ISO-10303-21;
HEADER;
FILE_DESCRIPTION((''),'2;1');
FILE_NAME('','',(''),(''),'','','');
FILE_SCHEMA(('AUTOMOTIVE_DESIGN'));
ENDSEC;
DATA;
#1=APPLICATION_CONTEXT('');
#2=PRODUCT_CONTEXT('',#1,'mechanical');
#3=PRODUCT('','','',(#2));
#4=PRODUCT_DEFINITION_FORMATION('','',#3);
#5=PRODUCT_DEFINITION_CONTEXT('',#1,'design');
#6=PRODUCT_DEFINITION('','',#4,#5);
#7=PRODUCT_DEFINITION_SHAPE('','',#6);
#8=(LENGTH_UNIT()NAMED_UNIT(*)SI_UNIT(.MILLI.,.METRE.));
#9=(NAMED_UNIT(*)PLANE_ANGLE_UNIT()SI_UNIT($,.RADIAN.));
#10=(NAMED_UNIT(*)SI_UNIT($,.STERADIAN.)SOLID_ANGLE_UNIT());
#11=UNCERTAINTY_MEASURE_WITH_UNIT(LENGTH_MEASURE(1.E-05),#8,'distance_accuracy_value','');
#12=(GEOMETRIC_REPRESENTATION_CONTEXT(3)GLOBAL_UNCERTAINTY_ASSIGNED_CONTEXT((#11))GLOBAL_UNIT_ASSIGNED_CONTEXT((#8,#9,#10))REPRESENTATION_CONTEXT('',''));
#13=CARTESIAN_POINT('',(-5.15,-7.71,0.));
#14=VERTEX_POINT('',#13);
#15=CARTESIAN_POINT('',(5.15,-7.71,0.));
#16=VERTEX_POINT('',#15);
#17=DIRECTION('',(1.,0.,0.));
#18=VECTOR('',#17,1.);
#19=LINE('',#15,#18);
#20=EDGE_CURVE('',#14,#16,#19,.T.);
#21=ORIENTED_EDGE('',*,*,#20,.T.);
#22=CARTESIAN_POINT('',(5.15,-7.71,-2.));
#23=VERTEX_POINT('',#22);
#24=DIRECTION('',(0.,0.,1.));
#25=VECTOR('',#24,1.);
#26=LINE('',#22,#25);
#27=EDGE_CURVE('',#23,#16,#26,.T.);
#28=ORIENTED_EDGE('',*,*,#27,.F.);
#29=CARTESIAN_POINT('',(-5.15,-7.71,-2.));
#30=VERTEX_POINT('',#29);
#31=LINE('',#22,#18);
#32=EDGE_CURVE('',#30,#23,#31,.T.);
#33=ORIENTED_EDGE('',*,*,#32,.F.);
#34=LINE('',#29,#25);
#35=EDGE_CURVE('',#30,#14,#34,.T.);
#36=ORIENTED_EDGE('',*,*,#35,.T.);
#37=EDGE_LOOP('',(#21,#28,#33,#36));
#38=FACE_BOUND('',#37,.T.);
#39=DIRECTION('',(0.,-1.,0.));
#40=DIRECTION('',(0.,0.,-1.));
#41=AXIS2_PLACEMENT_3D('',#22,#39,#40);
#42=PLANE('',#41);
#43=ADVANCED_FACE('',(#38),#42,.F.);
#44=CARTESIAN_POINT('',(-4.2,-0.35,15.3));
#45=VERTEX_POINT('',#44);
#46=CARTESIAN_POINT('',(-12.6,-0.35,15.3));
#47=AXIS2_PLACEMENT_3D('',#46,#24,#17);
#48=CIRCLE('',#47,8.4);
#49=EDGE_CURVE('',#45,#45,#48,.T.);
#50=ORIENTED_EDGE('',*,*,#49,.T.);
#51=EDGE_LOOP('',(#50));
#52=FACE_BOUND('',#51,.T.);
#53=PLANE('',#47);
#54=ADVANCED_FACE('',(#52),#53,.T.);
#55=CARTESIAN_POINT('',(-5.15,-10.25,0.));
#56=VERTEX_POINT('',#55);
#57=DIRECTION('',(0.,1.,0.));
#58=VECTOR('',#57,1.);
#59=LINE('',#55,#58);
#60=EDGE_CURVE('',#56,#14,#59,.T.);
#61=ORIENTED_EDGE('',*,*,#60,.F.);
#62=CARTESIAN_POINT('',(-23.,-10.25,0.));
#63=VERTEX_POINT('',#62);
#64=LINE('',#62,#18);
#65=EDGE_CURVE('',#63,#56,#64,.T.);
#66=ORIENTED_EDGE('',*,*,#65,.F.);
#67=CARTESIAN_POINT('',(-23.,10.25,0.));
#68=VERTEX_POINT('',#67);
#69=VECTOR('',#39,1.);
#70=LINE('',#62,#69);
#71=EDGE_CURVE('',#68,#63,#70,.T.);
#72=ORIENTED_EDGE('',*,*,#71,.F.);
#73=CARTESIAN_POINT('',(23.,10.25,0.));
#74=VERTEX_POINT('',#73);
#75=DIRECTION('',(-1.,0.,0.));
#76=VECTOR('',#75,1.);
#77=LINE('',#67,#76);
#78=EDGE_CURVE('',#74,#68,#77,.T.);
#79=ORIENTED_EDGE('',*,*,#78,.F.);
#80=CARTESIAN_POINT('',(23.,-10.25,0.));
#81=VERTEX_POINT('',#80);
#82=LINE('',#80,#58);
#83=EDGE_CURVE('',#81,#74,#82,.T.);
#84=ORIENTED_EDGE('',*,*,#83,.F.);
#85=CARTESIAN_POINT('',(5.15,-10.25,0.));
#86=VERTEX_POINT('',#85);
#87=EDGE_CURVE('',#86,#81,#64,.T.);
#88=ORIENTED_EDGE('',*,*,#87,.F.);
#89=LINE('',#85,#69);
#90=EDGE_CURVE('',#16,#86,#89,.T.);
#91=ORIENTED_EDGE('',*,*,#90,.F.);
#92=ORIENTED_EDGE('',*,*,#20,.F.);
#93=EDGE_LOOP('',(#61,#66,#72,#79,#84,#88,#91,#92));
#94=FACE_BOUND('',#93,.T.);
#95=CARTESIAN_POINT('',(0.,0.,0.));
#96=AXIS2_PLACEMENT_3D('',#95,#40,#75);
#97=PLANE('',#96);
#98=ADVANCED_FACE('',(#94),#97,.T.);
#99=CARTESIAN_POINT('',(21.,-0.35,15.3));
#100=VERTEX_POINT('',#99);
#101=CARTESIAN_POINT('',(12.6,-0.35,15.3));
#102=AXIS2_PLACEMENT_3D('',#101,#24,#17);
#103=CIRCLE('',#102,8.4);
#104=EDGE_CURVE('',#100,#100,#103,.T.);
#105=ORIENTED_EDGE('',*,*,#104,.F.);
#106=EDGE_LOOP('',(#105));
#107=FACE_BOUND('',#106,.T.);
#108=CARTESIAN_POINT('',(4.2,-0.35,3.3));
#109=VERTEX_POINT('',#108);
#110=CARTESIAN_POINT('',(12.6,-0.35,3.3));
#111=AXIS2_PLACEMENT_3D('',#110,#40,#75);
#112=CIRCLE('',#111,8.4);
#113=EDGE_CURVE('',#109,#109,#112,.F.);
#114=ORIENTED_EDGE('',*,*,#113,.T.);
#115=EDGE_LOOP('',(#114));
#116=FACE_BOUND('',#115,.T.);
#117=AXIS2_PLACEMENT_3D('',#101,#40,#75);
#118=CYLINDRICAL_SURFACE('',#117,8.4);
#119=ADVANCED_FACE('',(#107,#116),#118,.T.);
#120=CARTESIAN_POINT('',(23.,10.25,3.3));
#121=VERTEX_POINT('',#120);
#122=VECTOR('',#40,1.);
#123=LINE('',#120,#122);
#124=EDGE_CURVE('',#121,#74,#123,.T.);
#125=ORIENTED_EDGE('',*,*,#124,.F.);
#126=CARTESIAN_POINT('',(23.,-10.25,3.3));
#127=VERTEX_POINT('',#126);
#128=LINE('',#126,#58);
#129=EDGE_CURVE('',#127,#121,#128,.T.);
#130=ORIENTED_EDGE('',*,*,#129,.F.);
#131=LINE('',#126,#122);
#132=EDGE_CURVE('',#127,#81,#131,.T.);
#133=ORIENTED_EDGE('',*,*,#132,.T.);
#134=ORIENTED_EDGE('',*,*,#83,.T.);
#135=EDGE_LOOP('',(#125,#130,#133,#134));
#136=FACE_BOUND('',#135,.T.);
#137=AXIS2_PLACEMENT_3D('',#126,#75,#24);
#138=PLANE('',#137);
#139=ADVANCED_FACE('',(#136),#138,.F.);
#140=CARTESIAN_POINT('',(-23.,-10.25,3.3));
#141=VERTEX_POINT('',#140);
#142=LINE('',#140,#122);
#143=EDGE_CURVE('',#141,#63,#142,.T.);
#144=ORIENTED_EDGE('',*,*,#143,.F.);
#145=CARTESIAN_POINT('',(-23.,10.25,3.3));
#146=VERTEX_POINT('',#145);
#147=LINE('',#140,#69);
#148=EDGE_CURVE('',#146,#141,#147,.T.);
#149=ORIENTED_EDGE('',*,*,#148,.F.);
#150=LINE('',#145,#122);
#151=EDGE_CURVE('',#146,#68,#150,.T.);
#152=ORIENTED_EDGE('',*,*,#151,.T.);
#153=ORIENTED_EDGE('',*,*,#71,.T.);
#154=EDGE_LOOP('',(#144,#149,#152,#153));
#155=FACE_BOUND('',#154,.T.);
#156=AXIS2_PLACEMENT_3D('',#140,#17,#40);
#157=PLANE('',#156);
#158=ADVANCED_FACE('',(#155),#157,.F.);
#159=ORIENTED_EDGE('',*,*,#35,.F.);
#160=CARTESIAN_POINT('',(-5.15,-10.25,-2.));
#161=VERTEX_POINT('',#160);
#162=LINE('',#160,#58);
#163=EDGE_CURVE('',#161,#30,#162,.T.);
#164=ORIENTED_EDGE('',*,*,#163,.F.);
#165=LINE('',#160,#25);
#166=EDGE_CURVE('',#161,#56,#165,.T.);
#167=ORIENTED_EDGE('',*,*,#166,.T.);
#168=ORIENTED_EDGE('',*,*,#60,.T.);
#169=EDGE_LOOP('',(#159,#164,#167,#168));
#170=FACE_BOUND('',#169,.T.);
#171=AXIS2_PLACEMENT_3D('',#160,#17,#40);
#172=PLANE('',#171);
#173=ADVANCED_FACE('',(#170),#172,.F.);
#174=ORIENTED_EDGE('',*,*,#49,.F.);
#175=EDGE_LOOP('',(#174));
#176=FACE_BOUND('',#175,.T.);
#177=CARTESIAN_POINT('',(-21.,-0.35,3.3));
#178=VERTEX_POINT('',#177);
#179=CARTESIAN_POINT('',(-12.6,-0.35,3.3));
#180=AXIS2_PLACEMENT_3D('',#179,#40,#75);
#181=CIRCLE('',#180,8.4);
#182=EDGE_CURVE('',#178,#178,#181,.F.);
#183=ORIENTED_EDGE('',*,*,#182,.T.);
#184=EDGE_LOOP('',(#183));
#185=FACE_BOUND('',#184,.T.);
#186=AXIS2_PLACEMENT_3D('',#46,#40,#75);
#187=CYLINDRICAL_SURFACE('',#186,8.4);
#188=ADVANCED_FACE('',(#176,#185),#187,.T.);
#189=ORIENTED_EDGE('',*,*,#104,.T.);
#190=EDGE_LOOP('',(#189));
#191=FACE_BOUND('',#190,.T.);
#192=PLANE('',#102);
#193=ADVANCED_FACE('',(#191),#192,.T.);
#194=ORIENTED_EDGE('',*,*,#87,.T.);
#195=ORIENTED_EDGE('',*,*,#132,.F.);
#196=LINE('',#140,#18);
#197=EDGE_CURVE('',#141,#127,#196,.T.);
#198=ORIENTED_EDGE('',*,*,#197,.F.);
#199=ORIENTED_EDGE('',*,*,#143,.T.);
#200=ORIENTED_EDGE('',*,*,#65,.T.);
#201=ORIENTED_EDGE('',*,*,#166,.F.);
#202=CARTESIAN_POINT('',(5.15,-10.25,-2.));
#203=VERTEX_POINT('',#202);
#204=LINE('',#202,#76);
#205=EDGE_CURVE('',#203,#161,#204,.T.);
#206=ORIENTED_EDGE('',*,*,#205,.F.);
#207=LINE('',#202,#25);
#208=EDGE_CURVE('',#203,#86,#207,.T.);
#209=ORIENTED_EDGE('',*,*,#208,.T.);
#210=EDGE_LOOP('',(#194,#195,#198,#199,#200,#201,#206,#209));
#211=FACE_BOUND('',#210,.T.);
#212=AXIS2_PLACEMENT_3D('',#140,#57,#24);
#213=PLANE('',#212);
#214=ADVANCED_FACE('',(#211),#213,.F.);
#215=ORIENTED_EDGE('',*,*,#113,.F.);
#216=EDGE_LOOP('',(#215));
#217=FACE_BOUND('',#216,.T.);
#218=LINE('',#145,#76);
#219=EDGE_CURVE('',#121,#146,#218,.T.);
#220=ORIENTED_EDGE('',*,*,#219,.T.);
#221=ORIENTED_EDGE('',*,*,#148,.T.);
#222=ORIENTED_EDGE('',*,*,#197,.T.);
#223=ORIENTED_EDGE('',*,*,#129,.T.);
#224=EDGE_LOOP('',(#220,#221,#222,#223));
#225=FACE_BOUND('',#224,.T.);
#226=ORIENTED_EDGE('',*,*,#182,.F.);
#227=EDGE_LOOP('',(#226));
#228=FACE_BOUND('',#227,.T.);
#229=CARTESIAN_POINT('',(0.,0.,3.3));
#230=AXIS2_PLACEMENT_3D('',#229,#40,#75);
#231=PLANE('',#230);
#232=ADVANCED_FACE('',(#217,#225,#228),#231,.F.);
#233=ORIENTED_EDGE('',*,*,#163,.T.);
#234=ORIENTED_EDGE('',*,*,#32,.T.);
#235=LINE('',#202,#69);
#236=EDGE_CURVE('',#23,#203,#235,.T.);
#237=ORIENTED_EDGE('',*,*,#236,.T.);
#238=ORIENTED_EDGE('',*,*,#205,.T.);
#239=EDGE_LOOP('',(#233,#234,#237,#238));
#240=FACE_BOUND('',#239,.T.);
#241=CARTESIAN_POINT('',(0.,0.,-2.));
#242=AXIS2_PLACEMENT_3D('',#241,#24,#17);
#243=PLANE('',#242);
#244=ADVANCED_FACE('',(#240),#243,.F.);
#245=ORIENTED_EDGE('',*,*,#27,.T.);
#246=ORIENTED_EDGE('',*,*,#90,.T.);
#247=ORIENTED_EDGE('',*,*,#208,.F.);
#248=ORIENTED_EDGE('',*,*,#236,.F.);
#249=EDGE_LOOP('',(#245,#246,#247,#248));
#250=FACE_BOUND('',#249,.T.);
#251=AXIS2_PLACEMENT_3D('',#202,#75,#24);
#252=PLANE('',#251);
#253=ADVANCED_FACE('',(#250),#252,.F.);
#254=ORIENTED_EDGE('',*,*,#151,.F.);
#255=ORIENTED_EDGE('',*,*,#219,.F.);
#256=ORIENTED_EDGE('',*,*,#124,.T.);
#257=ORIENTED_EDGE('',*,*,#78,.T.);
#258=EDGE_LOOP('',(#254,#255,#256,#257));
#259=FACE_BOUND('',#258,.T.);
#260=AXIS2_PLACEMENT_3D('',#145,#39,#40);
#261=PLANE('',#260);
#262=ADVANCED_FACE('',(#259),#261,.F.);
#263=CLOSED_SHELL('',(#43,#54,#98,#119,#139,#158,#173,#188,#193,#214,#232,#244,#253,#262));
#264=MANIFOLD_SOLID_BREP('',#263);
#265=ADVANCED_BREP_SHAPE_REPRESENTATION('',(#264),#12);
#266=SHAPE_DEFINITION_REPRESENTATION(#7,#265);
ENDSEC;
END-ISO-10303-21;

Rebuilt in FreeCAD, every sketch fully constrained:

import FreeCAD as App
import Part
import Sketcher

V = App.Vector


def add_polygon(sketch, points):
    """Adds a closed chain of lines whose ends are joined by coincident constraints."""
    first, n = sketch.GeometryCount, len(points)
    for a, b in zip(points, points[1:] + points[:1]):
        sketch.addGeometry(Part.LineSegment(App.Vector(*a, 0), App.Vector(*b, 0)), False)
    for i in range(n):
        sketch.addConstraint(Sketcher.Constraint("Coincident", first + i, 2, first + (i + 1) % n, 1))

doc = App.newDocument("Part")
body = doc.addObject("PartDesign::Body", "Body")

# Sketch on XY plane
sketch1 = body.newObject("Sketcher::SketchObject", "Sketch")
sketch1.AttachmentSupport = (doc.getObject("XY_Plane"), [""])
sketch1.MapMode = "FlatFace"
add_polygon(sketch1, [(-23, 10), (-23, -10), (23, -10), (23, 10)])  # lines 0-3
sketch1.addConstraint([
    Sketcher.Constraint("Vertical", 0),
    Sketcher.Constraint("Horizontal", 1),
    Sketcher.Constraint("Vertical", 2),
    Sketcher.Constraint("Horizontal", 3),
    Sketcher.Constraint("Symmetric", 0, 2, 2, 2, -1, 1),
    Sketcher.Constraint("DistanceX", 1, 1, 1, 2, 46.0),
    Sketcher.Constraint("DistanceY", 0, 2, 0, 1, 20.5),
])
pad1 = body.newObject("PartDesign::Pad", "Pad")
pad1.Profile = sketch1
pad1.Length = 3.3

# Sketch on XY plane
sketch2 = body.newObject("Sketcher::SketchObject", "Sketch001")
sketch2.AttachmentSupport = (doc.getObject("XY_Plane"), [""])
sketch2.MapMode = "FlatFace"
sketch2.AttachmentOffset = App.Placement(V(0, 0, 3.3), App.Rotation())
sketch2.addGeometry([
    Part.Circle(V(-13, 0, 0), V(0, 0, 1), 8),
    Part.Circle(V(13, 0, 0), V(0, 0, 1), 8),
], False)
sketch2.addConstraint([
    Sketcher.Constraint("Equal", 0, 1),
    Sketcher.Constraint("Symmetric", 0, 3, 1, 3, -2),
    Sketcher.Constraint("Diameter", 0, 16.8),
    Sketcher.Constraint("DistanceX", 0, 3, -1, 1, 12.6),
    Sketcher.Constraint("DistanceY", 0, 3, -1, 1, 0.35),
])
pad2 = body.newObject("PartDesign::Pad", "Pad001")
pad2.Profile = sketch2
pad2.Length = 12

# Sketch on XY plane
sketch3 = body.newObject("Sketcher::SketchObject", "Sketch002")
sketch3.AttachmentSupport = (doc.getObject("XY_Plane"), [""])
sketch3.MapMode = "FlatFace"
add_polygon(sketch3, [(5.2, -7.7), (5.2, -10.2), (-5.2, -10.2), (-5.2, -7.7)])  # lines 0-3
sketch3.addConstraint([
    Sketcher.Constraint("Vertical", 0),
    Sketcher.Constraint("Horizontal", 1),
    Sketcher.Constraint("Vertical", 2),
    Sketcher.Constraint("Horizontal", 3),
    Sketcher.Constraint("DistanceX", 1, 2, 1, 1, 10.3),
    Sketcher.Constraint("DistanceY", 0, 2, 0, 1, 2.54),
    Sketcher.Constraint("DistanceX", -1, 1, 0, 2, 5.15),
    Sketcher.Constraint("DistanceY", 0, 2, -1, 1, 10.25),
])
pad3 = body.newObject("PartDesign::Pad", "Pad002")
pad3.Profile = sketch3
pad3.Length = 2
pad3.Reversed = True

doc.recompute()
